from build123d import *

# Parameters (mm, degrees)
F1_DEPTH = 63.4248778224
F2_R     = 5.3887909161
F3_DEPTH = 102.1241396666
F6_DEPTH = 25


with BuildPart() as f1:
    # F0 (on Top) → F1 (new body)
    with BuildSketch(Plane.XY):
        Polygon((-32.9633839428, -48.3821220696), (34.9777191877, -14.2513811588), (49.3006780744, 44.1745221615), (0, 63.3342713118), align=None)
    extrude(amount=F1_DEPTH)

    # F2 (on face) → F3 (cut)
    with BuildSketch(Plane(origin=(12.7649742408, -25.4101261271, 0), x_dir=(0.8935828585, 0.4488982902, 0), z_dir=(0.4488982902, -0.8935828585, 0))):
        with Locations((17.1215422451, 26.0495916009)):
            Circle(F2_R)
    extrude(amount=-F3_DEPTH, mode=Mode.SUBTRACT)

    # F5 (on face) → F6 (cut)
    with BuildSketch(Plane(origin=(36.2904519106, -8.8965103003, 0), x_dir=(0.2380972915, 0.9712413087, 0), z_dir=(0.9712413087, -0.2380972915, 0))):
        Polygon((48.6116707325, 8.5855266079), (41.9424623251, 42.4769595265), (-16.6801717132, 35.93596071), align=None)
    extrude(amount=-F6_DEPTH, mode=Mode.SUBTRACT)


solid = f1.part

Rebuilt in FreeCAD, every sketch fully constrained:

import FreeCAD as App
import Part
import Sketcher
Q = App.Units.Quantity


def add_polygon(sketch, points):
    """Adds a closed chain of lines whose ends are joined by coincident constraints."""
    first, n = sketch.GeometryCount, len(points)
    for a, b in zip(points, points[1:] + points[:1]):
        sketch.addGeometry(Part.LineSegment(App.Vector(*a, 0), App.Vector(*b, 0)), False)
    for i in range(n):
        sketch.addConstraint(Sketcher.Constraint("Coincident", first + i, 2, first + (i + 1) % n, 1))

doc = App.newDocument("Part")
body = doc.addObject("PartDesign::Body", "Body")

sketch1 = doc.addObject("Sketcher::SketchObject", "Sketch")
body.addObject(sketch1)
sketch1.AttachmentSupport = (doc.XY_Plane, [""])
sketch1.MapMode = "FlatFace"
add_polygon(sketch1, [(-32.963384, -48.382122), (34.977719, -14.251381), (49.300678, 44.174522), (0, 63.334271)])
sketch1.addConstraint(Sketcher.Constraint("PointOnObject", 2, 2, -2))
sketch1.addConstraint(Sketcher.Constraint("Distance", 1, Q("60.155909 mm")))
sketch1.addConstraint(Sketcher.Constraint("DistanceX", -1, 1, 0, 2, Q("34.977719 mm")))
sketch1.addConstraint(Sketcher.Constraint("DistanceY", 0, 2, -1, 1, Q("14.251381 mm")))
sketch1.addConstraint(Sketcher.Constraint("DistanceX", -1, 1, 1, 2, Q("49.300678 mm")))
sketch1.addConstraint(Sketcher.Constraint("DistanceY", -1, 1, 2, 2, Q("63.334271 mm")))
sketch1.addConstraint(Sketcher.Constraint("DistanceY", 3, 2, 0, 2, Q("34.130741 mm")))
sketch1.addConstraint(Sketcher.Constraint("Distance", 0, Q("76.032236 mm")))
pad1 = doc.addObject("PartDesign::Pad", "Pad")
body.addObject(pad1)
pad1.Profile = sketch1
pad1.Length = 63.424878

sketch2 = doc.addObject("Sketcher::SketchObject", "Sketch001")
body.addObject(sketch2)
sketch2.Placement = App.Placement(App.Vector(12.764974, -25.410126, 0), App.Rotation(App.Vector(0.893582859, 0.44889829, 0), App.Vector(0, 0, 1.000000001), App.Vector(0.44889829, -0.893582859, 0), "ZXY"))
sketch2.addGeometry(Part.Circle(App.Vector(17.121542, 26.049592, 0), App.Vector(0, 0, 1), 5.388791), False)
sketch2.addConstraint(Sketcher.Constraint("Diameter", 0, Q("10.777582 mm")))
sketch2.addConstraint(Sketcher.Constraint("DistanceY", -1, 1, 0, 3, Q("26.049592 mm")))
sketch2.addConstraint(Sketcher.Constraint("DistanceX", -1, 1, 0, 3, Q("17.121542 mm")))
pocket1 = doc.addObject("PartDesign::Pocket", "Pocket")
body.addObject(pocket1)
pocket1.Profile = sketch2
pocket1.Length = 102.12414

sketch3 = doc.addObject("Sketcher::SketchObject", "Sketch002")
body.addObject(sketch3)
sketch3.Placement = App.Placement(App.Vector(36.290452, -8.89651, 0), App.Rotation(App.Vector(0.238097292, 0.971241309, 0), App.Vector(0, 0, 1.000000001), App.Vector(0.971241309, -0.238097292, 0), "ZXY"))
add_polygon(sketch3, [(48.611671, 8.585527), (41.942462, 42.47696), (-16.680172, 35.935961)])
sketch3.addConstraint(Sketcher.Constraint("DistanceY", 1, 2, 0, 2, Q("6.540999 mm")))
sketch3.addConstraint(Sketcher.Constraint("Distance", 0, Q("34.541389 mm")))
sketch3.addConstraint(Sketcher.Constraint("Distance", 1, Q("58.986421 mm")))
sketch3.addConstraint(Sketcher.Constraint("Distance", 2, Q("70.788918 mm")))
sketch3.addConstraint(Sketcher.Constraint("DistanceY", -1, 1, 0, 2, Q("42.47696 mm")))
sketch3.addConstraint(Sketcher.Constraint("DistanceX", 1, 2, -1, 1, Q("16.680172 mm")))
pocket2 = doc.addObject("PartDesign::Pocket", "Pocket001")
body.addObject(pocket2)
pocket2.Profile = sketch3
pocket2.Length = 25

doc.recompute()
